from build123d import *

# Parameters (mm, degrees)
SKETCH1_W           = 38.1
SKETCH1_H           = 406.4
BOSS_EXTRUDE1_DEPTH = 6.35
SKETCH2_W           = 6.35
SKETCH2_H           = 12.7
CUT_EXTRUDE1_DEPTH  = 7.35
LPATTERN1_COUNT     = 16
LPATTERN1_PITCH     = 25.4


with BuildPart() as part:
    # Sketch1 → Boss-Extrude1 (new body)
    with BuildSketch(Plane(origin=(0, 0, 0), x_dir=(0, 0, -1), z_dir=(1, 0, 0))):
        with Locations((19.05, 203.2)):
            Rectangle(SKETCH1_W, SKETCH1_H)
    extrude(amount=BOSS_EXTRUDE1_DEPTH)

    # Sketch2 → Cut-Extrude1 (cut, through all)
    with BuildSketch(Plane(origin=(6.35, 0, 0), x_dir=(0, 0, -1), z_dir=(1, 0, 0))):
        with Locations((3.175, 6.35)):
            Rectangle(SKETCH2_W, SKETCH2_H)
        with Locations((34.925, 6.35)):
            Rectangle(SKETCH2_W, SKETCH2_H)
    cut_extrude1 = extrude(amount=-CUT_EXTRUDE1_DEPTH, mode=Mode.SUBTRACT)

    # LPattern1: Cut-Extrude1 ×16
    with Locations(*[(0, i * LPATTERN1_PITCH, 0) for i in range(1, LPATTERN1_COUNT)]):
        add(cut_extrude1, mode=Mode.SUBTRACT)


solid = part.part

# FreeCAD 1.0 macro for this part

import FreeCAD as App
import Part
import Sketcher
Q = App.Units.Quantity

doc = App.newDocument("Part")
body = doc.addObject("PartDesign::Body", "Body")

# Sketch on YZ plane
sketch1 = doc.addObject("Sketcher::SketchObject", "Sketch")
body.addObject(sketch1)
sketch1.AttachmentSupport = (doc.YZ_Plane, [""])
sketch1.MapMode = "FlatFace"
sketch1.addGeometry(Part.LineSegment(App.Vector(406.4, 0, 0), App.Vector(0, 0, 0)), False)
sketch1.addGeometry(Part.LineSegment(App.Vector(0, 0, 0), App.Vector(0, -38.1, 0)), False)
sketch1.addGeometry(Part.LineSegment(App.Vector(0, -38.1, 0), App.Vector(406.4, -38.1, 0)), False)
sketch1.addGeometry(Part.LineSegment(App.Vector(406.4, -38.1, 0), App.Vector(406.4, 0, 0)), False)
sketch1.addConstraint(Sketcher.Constraint("Coincident", 0, 2, 1, 1))
sketch1.addConstraint(Sketcher.Constraint("Coincident", 1, 2, 2, 1))
sketch1.addConstraint(Sketcher.Constraint("Coincident", 2, 2, 3, 1))
sketch1.addConstraint(Sketcher.Constraint("Coincident", 3, 2, 0, 1))
sketch1.addConstraint(Sketcher.Constraint("Horizontal", 0))
sketch1.addConstraint(Sketcher.Constraint("Vertical", 1))
sketch1.addConstraint(Sketcher.Constraint("Horizontal", 2))
sketch1.addConstraint(Sketcher.Constraint("Vertical", 3))
sketch1.addConstraint(Sketcher.Constraint("Coincident", 0, 2, -1, 1))
sketch1.addConstraint(Sketcher.Constraint("DistanceX", 0, 2, 0, 1, Q("16 in")))
sketch1.addConstraint(Sketcher.Constraint("DistanceY", 1, 2, 1, 1, Q("1.5 in")))
pad1 = doc.addObject("PartDesign::Pad", "Pad")
body.addObject(pad1)
pad1.Profile = sketch1
pad1.Length = Q("0.25 in")

# Sketch on YZ plane
sketch2 = doc.addObject("Sketcher::SketchObject", "Sketch001")
body.addObject(sketch2)
sketch2.AttachmentSupport = (doc.YZ_Plane, [""])
sketch2.MapMode = "FlatFace"
sketch2.AttachmentOffset = App.Placement(App.Vector(0, 0, 0.25 * 25.4), App.Rotation())
sketch2.addGeometry(Part.LineSegment(App.Vector(12.7, 0, 0), App.Vector(0, 0, 0)), False)
sketch2.addGeometry(Part.LineSegment(App.Vector(0, 0, 0), App.Vector(0, -6.35, 0)), False)
sketch2.addGeometry(Part.LineSegment(App.Vector(0, -6.35, 0), App.Vector(12.7, -6.35, 0)), False)
sketch2.addGeometry(Part.LineSegment(App.Vector(12.7, -6.35, 0), App.Vector(12.7, 0, 0)), False)
sketch2.addGeometry(Part.LineSegment(App.Vector(12.7, -31.75, 0), App.Vector(0, -31.75, 0)), False)
sketch2.addGeometry(Part.LineSegment(App.Vector(0, -31.75, 0), App.Vector(0, -38.1, 0)), False)
sketch2.addGeometry(Part.LineSegment(App.Vector(0, -38.1, 0), App.Vector(12.7, -38.1, 0)), False)
sketch2.addGeometry(Part.LineSegment(App.Vector(12.7, -38.1, 0), App.Vector(12.7, -31.75, 0)), False)
sketch2.addConstraint(Sketcher.Constraint("Coincident", 0, 2, 1, 1))
sketch2.addConstraint(Sketcher.Constraint("Coincident", 1, 2, 2, 1))
sketch2.addConstraint(Sketcher.Constraint("Coincident", 2, 2, 3, 1))
sketch2.addConstraint(Sketcher.Constraint("Coincident", 3, 2, 0, 1))
sketch2.addConstraint(Sketcher.Constraint("Coincident", 4, 2, 5, 1))
sketch2.addConstraint(Sketcher.Constraint("Coincident", 5, 2, 6, 1))
sketch2.addConstraint(Sketcher.Constraint("Coincident", 6, 2, 7, 1))
sketch2.addConstraint(Sketcher.Constraint("Coincident", 7, 2, 4, 1))
sketch2.addConstraint(Sketcher.Constraint("Horizontal", 0))
sketch2.addConstraint(Sketcher.Constraint("Vertical", 1))
sketch2.addConstraint(Sketcher.Constraint("Horizontal", 2))
sketch2.addConstraint(Sketcher.Constraint("Vertical", 3))
sketch2.addConstraint(Sketcher.Constraint("Horizontal", 4))
sketch2.addConstraint(Sketcher.Constraint("Vertical", 5))
sketch2.addConstraint(Sketcher.Constraint("Horizontal", 6))
sketch2.addConstraint(Sketcher.Constraint("Vertical", 7))
sketch2.addConstraint(Sketcher.Constraint("Coincident", 0, 2, -1, 1))
sketch2.addConstraint(Sketcher.Constraint("PointOnObject", 4, 2, -2))
sketch2.addConstraint(Sketcher.Constraint("Vertical", 3, 2, 6, 2))
sketch2.addConstraint(Sketcher.Constraint("Equal", 3, 5))
sketch2.addConstraint(Sketcher.Constraint("DistanceX", 0, 2, 0, 1, Q("0.5 in")))
sketch2.addConstraint(Sketcher.Constraint("DistanceY", 4, 2, 1, 2, Q("1 in")))
sketch2.addConstraint(Sketcher.Constraint("DistanceY", 1, 2, 1, 1, Q("0.25 in")))
pocket1 = doc.addObject("PartDesign::Pocket", "Pocket")
body.addObject(pocket1)
pocket1.Profile = sketch2
pocket1.Type = "ThroughAll"
doc.recompute()

linearpattern = doc.addObject("PartDesign::LinearPattern", "LinearPattern")
body.addObject(linearpattern)
linearpattern.Originals = [pocket1]
linearpattern.Direction = (doc.Y_Axis, [""])
linearpattern.Mode = "offset"
linearpattern.Offset = Q("1 in")
linearpattern.Occurrences = 16
body.Tip = linearpattern

doc.recompute()
